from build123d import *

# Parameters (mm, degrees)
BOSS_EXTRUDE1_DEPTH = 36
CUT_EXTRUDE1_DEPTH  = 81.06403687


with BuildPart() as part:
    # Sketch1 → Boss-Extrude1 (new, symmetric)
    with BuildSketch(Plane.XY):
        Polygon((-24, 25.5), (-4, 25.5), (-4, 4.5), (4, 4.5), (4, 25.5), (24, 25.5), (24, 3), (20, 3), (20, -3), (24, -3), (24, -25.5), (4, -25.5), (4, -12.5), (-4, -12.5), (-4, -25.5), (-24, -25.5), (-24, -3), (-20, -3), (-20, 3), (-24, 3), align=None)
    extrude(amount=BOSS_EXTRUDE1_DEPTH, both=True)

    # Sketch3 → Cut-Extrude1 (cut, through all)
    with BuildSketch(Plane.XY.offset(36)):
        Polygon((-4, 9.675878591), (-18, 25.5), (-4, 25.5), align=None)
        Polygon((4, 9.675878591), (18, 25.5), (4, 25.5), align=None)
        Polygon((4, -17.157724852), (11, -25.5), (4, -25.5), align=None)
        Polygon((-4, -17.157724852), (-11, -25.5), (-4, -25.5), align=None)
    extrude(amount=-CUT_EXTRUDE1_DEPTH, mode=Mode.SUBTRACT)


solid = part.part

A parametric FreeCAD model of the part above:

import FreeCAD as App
import Part
import Sketcher
Q = App.Units.Quantity


def add_polygon(sketch, points):
    """Adds a closed chain of lines whose ends are joined by coincident constraints."""
    first, n = sketch.GeometryCount, len(points)
    for a, b in zip(points, points[1:] + points[:1]):
        sketch.addGeometry(Part.LineSegment(App.Vector(*a, 0), App.Vector(*b, 0)), False)
    for i in range(n):
        sketch.addConstraint(Sketcher.Constraint("Coincident", first + i, 2, first + (i + 1) % n, 1))

doc = App.newDocument("Part")
body = doc.addObject("PartDesign::Body", "Body")

sketch1 = body.newObject("Sketcher::SketchObject", "Sketch")
sketch1.AttachmentSupport = (doc.getObject("XY_Plane"), [""])
sketch1.MapMode = "FlatFace"
add_polygon(sketch1, [(-4, 25.5), (-24, 25.5), (-24, 3), (-20, 3), (-20, -3), (-24, -3), (-24, -25.5), (-4, -25.5), (-4, -12.5), (4, -12.5), (4, -25.5), (24, -25.5), (24, -3), (20, -3), (20, 3), (24, 3), (24, 25.5), (4, 25.5), (4, 4.5), (-4, 4.5)])
sketch1.addConstraint([
    Sketcher.Constraint("Horizontal", 0),
    Sketcher.Constraint("Vertical", 1),
    Sketcher.Constraint("Horizontal", 2),
    Sketcher.Constraint("Vertical", 3),
    Sketcher.Constraint("Horizontal", 4),
    Sketcher.Constraint("Vertical", 5),
    Sketcher.Constraint("Horizontal", 6),
    Sketcher.Constraint("Vertical", 7),
    Sketcher.Constraint("Horizontal", 8),
    Sketcher.Constraint("Vertical", 9),
    Sketcher.Constraint("Horizontal", 10),
    Sketcher.Constraint("Vertical", 11),
    Sketcher.Constraint("Horizontal", 12),
    Sketcher.Constraint("Vertical", 13),
    Sketcher.Constraint("Horizontal", 14),
    Sketcher.Constraint("Vertical", 15),
    Sketcher.Constraint("Horizontal", 16),
    Sketcher.Constraint("Vertical", 17),
    Sketcher.Constraint("Horizontal", 18),
    Sketcher.Constraint("Vertical", 19),
    Sketcher.Constraint("Symmetric", 0, 2, 10, 2, -1, 1),
    Sketcher.Constraint("Symmetric", 2, 2, 12, 2, -1, 1),
    Sketcher.Constraint("Symmetric", 4, 2, 14, 2, -1, 1),
    Sketcher.Constraint("Symmetric", 6, 2, 16, 2, -1, 1),
    Sketcher.Constraint("Symmetric", 6, 2, 9, 2, -2),
    Sketcher.Constraint("Symmetric", 4, 2, 11, 2, -2),
    Sketcher.Constraint("Vertical", 7, 2, 18, 2),
    Sketcher.Constraint("DistanceX", 0, 2, 0, 1, 20.0),
    Sketcher.Constraint("DistanceX", 2, 1, 2, 2, 4.0),
    Sketcher.Constraint("DistanceX", 8, 1, 8, 2, 8.0),
    Sketcher.Constraint("DistanceY", 3, 2, 3, 1, 6.0),
    Sketcher.Constraint("DistanceY", 7, 1, 7, 2, 13.0),
    Sketcher.Constraint("DistanceY", 17, 2, 17, 1, 21.0),
    Sketcher.Constraint("DistanceY", 1, 2, 1, 1, 22.5),
])
pad1 = body.newObject("PartDesign::Pad", "Pad")
pad1.Profile = sketch1
pad1.Length = 72
pad1.Midplane = True

sketch2 = body.newObject("Sketcher::SketchObject", "Sketch001")
sketch2.AttachmentSupport = (doc.getObject("XY_Plane"), [""])
sketch2.MapMode = "FlatFace"
sketch2.AttachmentOffset = App.Placement(App.Vector(0, 0, 36), App.Rotation())
add_polygon(sketch2, [(-18, 26), (-4, 10), (-4, 26)])
add_polygon(sketch2, [(4, 10), (18, 26), (4, 26)])
add_polygon(sketch2, [(11, -26), (4, -17), (4, -26)])
add_polygon(sketch2, [(-4, -17), (-11, -26), (-4, -26)])
sketch2.addConstraint([
    Sketcher.Constraint("Vertical", 1),
    Sketcher.Constraint("Horizontal", 2),
    Sketcher.Constraint("Horizontal", 4),
    Sketcher.Constraint("Vertical", 5),
    Sketcher.Constraint("Vertical", 7),
    Sketcher.Constraint("Horizontal", 8),
    Sketcher.Constraint("Horizontal", 10),
    Sketcher.Constraint("Vertical", 11),
    Sketcher.Constraint("Symmetric", 1, 2, 7, 2, -1, 1),
    Sketcher.Constraint("Symmetric", 4, 2, 10, 2, -1, 1),
    Sketcher.Constraint("Symmetric", 2, 2, 3, 2, -2),
    Sketcher.Constraint("Symmetric", 0, 2, 5, 2, -2),
    Sketcher.Constraint("Horizontal", 6, 2, 11, 2),
    Sketcher.Constraint("Equal", 8, 10),
    Sketcher.Constraint("DistanceX", 2, 2, 2, 1, 14.0),
    Sketcher.Constraint("DistanceX", 8, 1, 8, 2, 7.0),
    Sketcher.Constraint("Angle", 6, Q("130 deg")),
    Sketcher.Constraint("DistanceX", 0, 2, -1, 1, 4.0),
    Sketcher.Constraint("Angle", 0, Q("-48.5 deg")),
    Sketcher.Constraint("DistanceY", 7, 2, 4, 2, 51.0),
])
pocket1 = body.newObject("PartDesign::Pocket", "Pocket")
pocket1.Profile = sketch2
pocket1.Type = "ThroughAll"

doc.recompute()
